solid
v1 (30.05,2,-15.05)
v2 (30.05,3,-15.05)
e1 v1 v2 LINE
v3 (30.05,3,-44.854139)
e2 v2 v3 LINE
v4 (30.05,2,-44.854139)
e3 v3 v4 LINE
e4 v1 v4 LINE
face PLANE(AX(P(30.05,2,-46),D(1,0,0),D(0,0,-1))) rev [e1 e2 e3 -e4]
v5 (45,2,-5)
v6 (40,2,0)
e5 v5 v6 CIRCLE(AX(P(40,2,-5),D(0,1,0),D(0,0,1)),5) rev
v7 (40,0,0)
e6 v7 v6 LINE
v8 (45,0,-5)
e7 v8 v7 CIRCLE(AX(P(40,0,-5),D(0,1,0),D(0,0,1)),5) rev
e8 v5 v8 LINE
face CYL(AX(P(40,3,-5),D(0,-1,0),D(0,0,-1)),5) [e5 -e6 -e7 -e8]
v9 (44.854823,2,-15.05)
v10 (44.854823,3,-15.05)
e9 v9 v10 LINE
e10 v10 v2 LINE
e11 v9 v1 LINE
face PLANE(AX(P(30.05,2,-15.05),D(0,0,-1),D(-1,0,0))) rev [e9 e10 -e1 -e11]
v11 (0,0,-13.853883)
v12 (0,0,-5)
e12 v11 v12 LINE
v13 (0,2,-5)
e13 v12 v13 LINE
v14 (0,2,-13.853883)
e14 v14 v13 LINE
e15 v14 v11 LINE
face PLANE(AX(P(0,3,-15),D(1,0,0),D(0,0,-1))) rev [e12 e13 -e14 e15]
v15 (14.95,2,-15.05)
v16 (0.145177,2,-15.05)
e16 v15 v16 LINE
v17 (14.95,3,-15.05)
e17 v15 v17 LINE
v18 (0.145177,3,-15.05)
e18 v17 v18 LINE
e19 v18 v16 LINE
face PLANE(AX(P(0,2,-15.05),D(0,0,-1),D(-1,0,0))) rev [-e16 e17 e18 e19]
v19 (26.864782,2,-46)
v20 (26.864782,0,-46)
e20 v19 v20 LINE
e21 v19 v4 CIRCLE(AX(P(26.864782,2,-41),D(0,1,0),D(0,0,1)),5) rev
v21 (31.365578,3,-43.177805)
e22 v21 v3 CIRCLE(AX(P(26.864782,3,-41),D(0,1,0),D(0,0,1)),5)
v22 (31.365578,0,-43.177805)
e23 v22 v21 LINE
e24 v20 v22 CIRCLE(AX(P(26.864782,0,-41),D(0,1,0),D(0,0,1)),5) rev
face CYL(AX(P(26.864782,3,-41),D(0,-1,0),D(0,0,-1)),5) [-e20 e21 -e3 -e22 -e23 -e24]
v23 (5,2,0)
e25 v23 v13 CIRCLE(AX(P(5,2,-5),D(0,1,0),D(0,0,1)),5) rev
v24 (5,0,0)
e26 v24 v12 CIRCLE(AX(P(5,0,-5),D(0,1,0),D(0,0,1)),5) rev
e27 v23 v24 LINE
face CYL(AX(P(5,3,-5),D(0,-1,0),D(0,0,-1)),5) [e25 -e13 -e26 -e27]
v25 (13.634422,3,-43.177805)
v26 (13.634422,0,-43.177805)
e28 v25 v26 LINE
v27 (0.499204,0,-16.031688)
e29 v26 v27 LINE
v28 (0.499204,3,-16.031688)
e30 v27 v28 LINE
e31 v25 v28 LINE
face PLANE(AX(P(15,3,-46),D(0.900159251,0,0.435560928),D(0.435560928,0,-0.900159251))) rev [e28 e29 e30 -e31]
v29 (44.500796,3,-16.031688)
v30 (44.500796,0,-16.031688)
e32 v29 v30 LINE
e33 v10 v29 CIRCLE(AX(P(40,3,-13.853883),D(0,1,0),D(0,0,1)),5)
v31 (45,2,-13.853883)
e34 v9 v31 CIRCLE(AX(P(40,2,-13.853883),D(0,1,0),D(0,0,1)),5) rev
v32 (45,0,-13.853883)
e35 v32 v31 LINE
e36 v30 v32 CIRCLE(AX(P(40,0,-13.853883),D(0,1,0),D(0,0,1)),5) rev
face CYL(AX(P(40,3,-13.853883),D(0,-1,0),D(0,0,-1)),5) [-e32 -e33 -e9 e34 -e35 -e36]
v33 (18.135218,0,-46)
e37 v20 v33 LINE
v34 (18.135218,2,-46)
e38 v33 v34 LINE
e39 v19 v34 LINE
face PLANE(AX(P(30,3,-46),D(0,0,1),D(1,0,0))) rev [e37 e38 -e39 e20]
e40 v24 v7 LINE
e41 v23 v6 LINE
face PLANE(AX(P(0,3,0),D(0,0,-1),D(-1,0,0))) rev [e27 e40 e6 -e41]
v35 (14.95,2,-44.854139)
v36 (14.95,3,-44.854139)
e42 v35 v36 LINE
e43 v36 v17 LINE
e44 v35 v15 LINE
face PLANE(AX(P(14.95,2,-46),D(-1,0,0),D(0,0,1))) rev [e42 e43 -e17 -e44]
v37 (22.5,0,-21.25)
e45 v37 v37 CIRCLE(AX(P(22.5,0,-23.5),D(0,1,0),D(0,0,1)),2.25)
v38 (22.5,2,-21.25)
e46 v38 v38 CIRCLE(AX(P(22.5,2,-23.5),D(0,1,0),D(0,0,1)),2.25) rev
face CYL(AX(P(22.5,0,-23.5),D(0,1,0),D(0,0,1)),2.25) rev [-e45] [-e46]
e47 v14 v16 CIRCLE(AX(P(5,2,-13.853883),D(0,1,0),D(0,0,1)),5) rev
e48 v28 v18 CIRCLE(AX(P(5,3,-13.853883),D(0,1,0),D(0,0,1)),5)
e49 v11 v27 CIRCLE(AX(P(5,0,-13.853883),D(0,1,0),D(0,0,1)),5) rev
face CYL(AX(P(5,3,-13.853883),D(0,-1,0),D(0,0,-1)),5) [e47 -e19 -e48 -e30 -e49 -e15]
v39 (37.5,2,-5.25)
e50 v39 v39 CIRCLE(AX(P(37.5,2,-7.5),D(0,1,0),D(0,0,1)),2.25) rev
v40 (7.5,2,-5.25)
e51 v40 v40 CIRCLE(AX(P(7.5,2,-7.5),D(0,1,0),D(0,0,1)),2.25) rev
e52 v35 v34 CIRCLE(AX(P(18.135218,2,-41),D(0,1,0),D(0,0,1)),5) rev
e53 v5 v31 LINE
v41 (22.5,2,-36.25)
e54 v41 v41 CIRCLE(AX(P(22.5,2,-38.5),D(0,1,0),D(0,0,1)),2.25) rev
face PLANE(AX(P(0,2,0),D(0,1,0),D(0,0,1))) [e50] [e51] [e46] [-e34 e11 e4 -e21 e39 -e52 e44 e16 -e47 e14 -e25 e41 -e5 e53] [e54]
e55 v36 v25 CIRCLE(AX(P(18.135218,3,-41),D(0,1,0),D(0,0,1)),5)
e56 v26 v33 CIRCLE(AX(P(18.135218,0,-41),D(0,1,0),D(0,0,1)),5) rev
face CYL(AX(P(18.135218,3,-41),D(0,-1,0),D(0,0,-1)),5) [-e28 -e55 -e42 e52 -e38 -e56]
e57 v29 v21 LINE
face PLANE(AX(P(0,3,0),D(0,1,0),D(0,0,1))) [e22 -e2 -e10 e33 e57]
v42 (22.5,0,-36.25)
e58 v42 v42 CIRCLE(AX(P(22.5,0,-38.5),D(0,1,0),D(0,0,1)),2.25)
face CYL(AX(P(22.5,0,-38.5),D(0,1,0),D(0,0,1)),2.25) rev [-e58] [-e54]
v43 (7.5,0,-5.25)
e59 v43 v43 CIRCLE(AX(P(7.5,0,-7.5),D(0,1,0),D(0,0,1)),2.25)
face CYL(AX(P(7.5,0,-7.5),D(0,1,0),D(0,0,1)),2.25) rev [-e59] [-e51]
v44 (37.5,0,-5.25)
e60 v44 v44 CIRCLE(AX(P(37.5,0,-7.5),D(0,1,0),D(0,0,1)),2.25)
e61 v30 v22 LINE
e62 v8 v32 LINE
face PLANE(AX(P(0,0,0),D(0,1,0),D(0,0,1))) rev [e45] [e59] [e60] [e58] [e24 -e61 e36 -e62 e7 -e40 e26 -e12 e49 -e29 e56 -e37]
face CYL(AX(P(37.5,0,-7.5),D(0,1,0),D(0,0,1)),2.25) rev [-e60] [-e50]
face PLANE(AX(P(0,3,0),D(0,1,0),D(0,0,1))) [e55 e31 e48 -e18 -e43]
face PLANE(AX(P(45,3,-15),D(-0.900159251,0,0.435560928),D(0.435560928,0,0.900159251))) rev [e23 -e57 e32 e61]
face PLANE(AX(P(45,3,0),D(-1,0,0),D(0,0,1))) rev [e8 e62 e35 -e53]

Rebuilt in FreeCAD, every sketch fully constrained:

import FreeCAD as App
import Part
import Sketcher
from FreeCAD import Vector


def edges_at(feature, points):
    """Names of the edges that pass closest to the given points."""
    edges = feature.Shape.Edges
    near = lambda p: min(range(len(edges)), key=lambda i: edges[i].distToShape(Part.Vertex(*p))[0])
    return sorted({f"Edge{near(p) + 1}" for p in points})

doc = App.newDocument("Part")
body = doc.addObject("PartDesign::Body", "Body")

sketch1 = doc.addObject("Sketcher::SketchObject", "Sketch")
body.addObject(sketch1)
sketch1.AttachmentSupport = (doc.XZ_Plane, [""])
sketch1.MapMode = "FlatFace"
sketch1.addGeometry(Part.LineSegment(Vector(0, 0, 0), Vector(45, 0, 0)), False)
sketch1.addGeometry(Part.LineSegment(Vector(45, 0, 0), Vector(45, -15, 0)), False)
sketch1.addGeometry(Part.LineSegment(Vector(45, -15, 0), Vector(30, -46, 0)), False)
sketch1.addGeometry(Part.LineSegment(Vector(30, -46, 0), Vector(15, -46, 0)), False)
sketch1.addGeometry(Part.LineSegment(Vector(15, -46, 0), Vector(0, -15, 0)), False)
sketch1.addGeometry(Part.LineSegment(Vector(0, -15, 0), Vector(0, 0, 0)), False)
sketch1.addConstraint(Sketcher.Constraint("Coincident", 0, 2, 1, 1))
sketch1.addConstraint(Sketcher.Constraint("Coincident", 1, 2, 2, 1))
sketch1.addConstraint(Sketcher.Constraint("Coincident", 2, 2, 3, 1))
sketch1.addConstraint(Sketcher.Constraint("Coincident", 3, 2, 4, 1))
sketch1.addConstraint(Sketcher.Constraint("Coincident", 4, 2, 5, 1))
sketch1.addConstraint(Sketcher.Constraint("Coincident", 5, 2, 0, 1))
sketch1.addConstraint(Sketcher.Constraint("Horizontal", 0))
sketch1.addConstraint(Sketcher.Constraint("Vertical", 1))
sketch1.addConstraint(Sketcher.Constraint("Horizontal", 3))
sketch1.addConstraint(Sketcher.Constraint("Vertical", 5))
sketch1.addConstraint(Sketcher.Constraint("Coincident", 5, 2, -1, 1))
sketch1.addConstraint(Sketcher.Constraint("Horizontal", 1, 2, 4, 2))
sketch1.addConstraint(Sketcher.Constraint("Equal", 3, 1))
sketch1.addConstraint(Sketcher.Constraint("Equal", 2, 4))
sketch1.addConstraint(Sketcher.Constraint("DistanceX", 0, 1, 0, 2, 45.0))
sketch1.addConstraint(Sketcher.Constraint("DistanceX", 3, 2, 3, 1, 15.0))
sketch1.addConstraint(Sketcher.Constraint("DistanceY", 2, 2, -1, 1, 46.0))
pad1 = doc.addObject("PartDesign::Pad", "Pad")
body.addObject(pad1)
pad1.Profile = sketch1
pad1.Length = 3
pad1.Reversed = True

sketch2 = doc.addObject("Sketcher::SketchObject", "Sketch001")
body.addObject(sketch2)
sketch2.AttachmentSupport = (doc.XZ_Plane, [""])
sketch2.MapMode = "FlatFace"
sketch2.AttachmentOffset = App.Placement(Vector(0, 0, -3), App.Rotation())
sketch2.addGeometry(Part.Circle(Vector(7.5, -7.5, 0), Vector(0, 0, 1), 2.2), False)
sketch2.addGeometry(Part.Circle(Vector(22.5, -38.5, 0), Vector(0, 0, 1), 2.2), False)
sketch2.addGeometry(Part.Circle(Vector(22.5, -23.5, 0), Vector(0, 0, 1), 2.2), False)
sketch2.addGeometry(Part.Circle(Vector(37.5, -7.5, 0), Vector(0, 0, 1), 2.2), False)
sketch2.addConstraint(Sketcher.Constraint("Equal", 0, 1))
sketch2.addConstraint(Sketcher.Constraint("Equal", 1, 2))
sketch2.addConstraint(Sketcher.Constraint("Equal", 2, 3))
sketch2.addConstraint(Sketcher.Constraint("Horizontal", 0, 3, 3, 3))
sketch2.addConstraint(Sketcher.Constraint("Vertical", 1, 3, 2, 3))
sketch2.addConstraint(Sketcher.Constraint("Diameter", 0, 4.5))
sketch2.addConstraint(Sketcher.Constraint("DistanceX", 0, 3, 1, 3, 15.0))
sketch2.addConstraint(Sketcher.Constraint("DistanceY", 1, 3, 0, 3, 31.0))
sketch2.addConstraint(Sketcher.Constraint("DistanceY", 1, 3, 2, 3, 15.0))
sketch2.addConstraint(Sketcher.Constraint("DistanceX", 2, 3, 3, 3, 15.0))
sketch2.addConstraint(Sketcher.Constraint("DistanceX", -1, 1, 0, 3, 7.5))
sketch2.addConstraint(Sketcher.Constraint("DistanceY", 0, 3, -1, 1, 7.5))
pocket1 = doc.addObject("PartDesign::Pocket", "Pocket")
body.addObject(pocket1)
pocket1.Profile = sketch2
pocket1.Length = 3
pocket1.Reversed = True
doc.recompute()

fillet = doc.addObject("PartDesign::Fillet", "Fillet")
body.addObject(fillet)
fillet.Base = (pocket1, edges_at(pocket1, [
    (0, 1.5, -15),
    (15, 1.5, -46),
    (30, 1.5, -46),
    (45, 1.5, -15),
    (45, 1.5, 0),
    (0, 1.5, 0),
]))
fillet.Radius = 5

sketch3 = doc.addObject("Sketcher::SketchObject", "Sketch002")
body.addObject(sketch3)
sketch3.AttachmentSupport = (doc.XZ_Plane, [""])
sketch3.MapMode = "FlatFace"
sketch3.AttachmentOffset = App.Placement(Vector(0, 0, -3), App.Rotation())
sketch3.addGeometry(Part.LineSegment(Vector(30, -46, 0), Vector(15, -46, 0)), False)
sketch3.addGeometry(Part.LineSegment(Vector(15, -46, 0), Vector(15, -15, 0)), False)
sketch3.addGeometry(Part.LineSegment(Vector(15, -15, 0), Vector(0, -15, 0)), False)
sketch3.addGeometry(Part.LineSegment(Vector(0, -15, 0), Vector(0, 0, 0)), False)
sketch3.addGeometry(Part.LineSegment(Vector(0, 0, 0), Vector(45, 0, 0)), False)
sketch3.addGeometry(Part.LineSegment(Vector(45, 0, 0), Vector(45, -15, 0)), False)
sketch3.addGeometry(Part.LineSegment(Vector(45, -15, 0), Vector(30, -15, 0)), False)
sketch3.addGeometry(Part.LineSegment(Vector(30, -15, 0), Vector(30, -46, 0)), False)
sketch3.addConstraint(Sketcher.Constraint("Coincident", 0, 2, 1, 1))
sketch3.addConstraint(Sketcher.Constraint("Coincident", 1, 2, 2, 1))
sketch3.addConstraint(Sketcher.Constraint("Coincident", 2, 2, 3, 1))
sketch3.addConstraint(Sketcher.Constraint("Coincident", 3, 2, 4, 1))
sketch3.addConstraint(Sketcher.Constraint("Coincident", 4, 2, 5, 1))
sketch3.addConstraint(Sketcher.Constraint("Coincident", 5, 2, 6, 1))
sketch3.addConstraint(Sketcher.Constraint("Coincident", 6, 2, 7, 1))
sketch3.addConstraint(Sketcher.Constraint("Coincident", 7, 2, 0, 1))
sketch3.addConstraint(Sketcher.Constraint("Horizontal", 0))
sketch3.addConstraint(Sketcher.Constraint("Vertical", 1))
sketch3.addConstraint(Sketcher.Constraint("Horizontal", 2))
sketch3.addConstraint(Sketcher.Constraint("Vertical", 3))
sketch3.addConstraint(Sketcher.Constraint("Horizontal", 4))
sketch3.addConstraint(Sketcher.Constraint("Vertical", 5))
sketch3.addConstraint(Sketcher.Constraint("Horizontal", 6))
sketch3.addConstraint(Sketcher.Constraint("Vertical", 7))
sketch3.addConstraint(Sketcher.Constraint("Coincident", 3, 2, -1, 1))
sketch3.addConstraint(Sketcher.Constraint("Horizontal", 2, 2, 5, 2))
sketch3.addConstraint(Sketcher.Constraint("Equal", 2, 6))
sketch3.addConstraint(Sketcher.Constraint("DistanceX", 4, 1, 4, 2, 45.0))
sketch3.addConstraint(Sketcher.Constraint("DistanceX", 0, 2, 0, 1, 15.1))
sketch3.addConstraint(Sketcher.Constraint("DistanceY", 0, 2, -1, 1, 46.0))
sketch3.addConstraint(Sketcher.Constraint("DistanceY", 1, 1, 1, 2, 30.95))
pocket2 = doc.addObject("PartDesign::Pocket", "Pocket001")
body.addObject(pocket2)
pocket2.Profile = sketch3
pocket2.Length = 1
pocket2.Reversed = True

doc.recompute()
